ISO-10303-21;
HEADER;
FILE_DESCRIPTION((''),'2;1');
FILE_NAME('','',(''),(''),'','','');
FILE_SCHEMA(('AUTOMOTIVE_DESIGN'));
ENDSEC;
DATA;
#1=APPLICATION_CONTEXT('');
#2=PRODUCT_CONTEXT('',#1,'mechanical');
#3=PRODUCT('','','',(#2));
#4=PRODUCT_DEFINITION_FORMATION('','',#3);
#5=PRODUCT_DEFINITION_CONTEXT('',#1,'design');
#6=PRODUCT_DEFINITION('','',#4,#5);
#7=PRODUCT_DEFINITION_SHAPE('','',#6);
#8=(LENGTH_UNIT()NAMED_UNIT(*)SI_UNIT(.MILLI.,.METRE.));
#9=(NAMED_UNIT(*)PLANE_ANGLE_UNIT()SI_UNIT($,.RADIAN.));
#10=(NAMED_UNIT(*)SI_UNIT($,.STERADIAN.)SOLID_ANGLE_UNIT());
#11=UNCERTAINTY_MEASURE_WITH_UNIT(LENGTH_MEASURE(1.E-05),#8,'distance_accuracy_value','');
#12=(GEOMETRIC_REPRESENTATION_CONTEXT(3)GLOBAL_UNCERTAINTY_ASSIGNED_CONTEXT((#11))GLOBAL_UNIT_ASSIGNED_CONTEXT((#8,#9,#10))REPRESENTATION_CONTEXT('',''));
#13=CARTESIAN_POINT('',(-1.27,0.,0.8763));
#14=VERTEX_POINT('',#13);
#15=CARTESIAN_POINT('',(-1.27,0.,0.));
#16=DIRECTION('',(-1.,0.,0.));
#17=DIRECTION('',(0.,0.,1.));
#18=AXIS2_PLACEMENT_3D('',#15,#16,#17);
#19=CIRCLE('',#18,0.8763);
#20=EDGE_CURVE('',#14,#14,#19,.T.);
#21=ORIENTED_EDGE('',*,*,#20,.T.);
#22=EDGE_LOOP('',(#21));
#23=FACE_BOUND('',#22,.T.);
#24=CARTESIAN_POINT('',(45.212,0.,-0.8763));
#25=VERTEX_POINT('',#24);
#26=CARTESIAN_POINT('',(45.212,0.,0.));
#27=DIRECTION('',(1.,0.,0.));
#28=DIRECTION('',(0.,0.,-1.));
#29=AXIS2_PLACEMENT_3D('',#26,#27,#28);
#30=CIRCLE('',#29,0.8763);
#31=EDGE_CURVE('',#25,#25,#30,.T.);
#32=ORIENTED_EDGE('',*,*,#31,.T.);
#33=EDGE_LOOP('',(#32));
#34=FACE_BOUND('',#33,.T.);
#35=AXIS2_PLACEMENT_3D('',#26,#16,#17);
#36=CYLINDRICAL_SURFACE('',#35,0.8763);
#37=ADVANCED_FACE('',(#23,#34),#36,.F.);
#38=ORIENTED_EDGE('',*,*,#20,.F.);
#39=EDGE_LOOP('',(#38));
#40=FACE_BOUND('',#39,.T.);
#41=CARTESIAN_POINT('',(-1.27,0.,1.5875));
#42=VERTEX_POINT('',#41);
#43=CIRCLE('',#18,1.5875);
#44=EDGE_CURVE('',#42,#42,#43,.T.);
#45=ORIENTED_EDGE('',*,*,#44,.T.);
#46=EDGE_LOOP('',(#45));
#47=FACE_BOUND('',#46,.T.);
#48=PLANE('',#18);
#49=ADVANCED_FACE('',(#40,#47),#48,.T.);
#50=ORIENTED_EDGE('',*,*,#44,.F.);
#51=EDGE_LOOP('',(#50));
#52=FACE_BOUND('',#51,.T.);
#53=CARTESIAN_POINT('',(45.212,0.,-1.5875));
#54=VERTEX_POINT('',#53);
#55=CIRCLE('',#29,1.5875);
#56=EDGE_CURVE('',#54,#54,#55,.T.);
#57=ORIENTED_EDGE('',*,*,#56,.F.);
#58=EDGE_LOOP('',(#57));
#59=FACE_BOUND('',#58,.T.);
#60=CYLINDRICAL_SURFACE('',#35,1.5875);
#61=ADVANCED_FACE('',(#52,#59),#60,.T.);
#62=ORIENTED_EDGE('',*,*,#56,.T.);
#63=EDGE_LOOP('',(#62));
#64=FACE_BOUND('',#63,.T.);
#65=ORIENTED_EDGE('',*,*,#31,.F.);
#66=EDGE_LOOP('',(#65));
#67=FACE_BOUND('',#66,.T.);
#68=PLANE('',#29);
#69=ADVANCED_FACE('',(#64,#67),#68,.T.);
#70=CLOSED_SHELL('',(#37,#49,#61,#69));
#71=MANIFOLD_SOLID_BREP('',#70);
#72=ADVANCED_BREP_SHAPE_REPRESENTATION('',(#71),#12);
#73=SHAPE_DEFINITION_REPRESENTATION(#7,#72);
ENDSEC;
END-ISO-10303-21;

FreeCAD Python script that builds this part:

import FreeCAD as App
import Part
import Sketcher

V = App.Vector
Q = App.Units.Quantity

doc = App.newDocument("Part")
params = doc.addObject("Spreadsheet::Sheet", "Params")
for row, (alias, value) in enumerate([
    ("sketch1_diameter", "0.125 in"),
    ("sketch1_diameter2", "0.069 in"),
    ("pad1_length", "1.78 in"),
    ("sketch2_diameter", "0.125 in"),
    ("sketch2_diameter2", "0.069 in"),
    ("pad2_length", "0.05 in"),
], start=1):
    params.set(f"A{row}", alias)
    params.set(f"B{row}", "=" + value)
    params.setAlias(f"B{row}", alias)

body = doc.addObject("PartDesign::Body", "Body")

# Sketch on YZ plane
sketch1 = body.newObject("Sketcher::SketchObject", "Sketch")
sketch1.AttachmentSupport = (doc.getObject("YZ_Plane"), [""])
sketch1.MapMode = "FlatFace"
sketch1.addGeometry(Part.Circle(V(0, 0, 0), V(0, 0, 1), 1.6), False)
sketch1.addGeometry(Part.Circle(V(0, 0, 0), V(0, 0, 1), 0.9), False)
sketch1.addConstraint(Sketcher.Constraint("Coincident", 0, 3, -1, 1))
sketch1.addConstraint(Sketcher.Constraint("Coincident", 1, 3, -1, 1))
sketch1.addConstraint(Sketcher.Constraint("Diameter", 0, Q("0.125 in")))
sketch1.addConstraint(Sketcher.Constraint("Diameter", 1, Q("0.069 in")))
sketch1.setExpression("Constraints[2]", "Params.sketch1_diameter")
sketch1.setExpression("Constraints[3]", "Params.sketch1_diameter2")
pad1 = body.newObject("PartDesign::Pad", "Pad")
pad1.Profile = sketch1
pad1.setExpression("Length", "Params.pad1_length")

# Sketch on YZ plane
sketch2 = body.newObject("Sketcher::SketchObject", "Sketch001")
sketch2.AttachmentSupport = (doc.getObject("YZ_Plane"), [""])
sketch2.MapMode = "FlatFace"
sketch2.addGeometry(Part.Circle(V(0, 0, 0), V(0, 0, 1), 1.6), False)
sketch2.addGeometry(Part.Circle(V(0, 0, 0), V(0, 0, 1), 0.9), False)
sketch2.addConstraint(Sketcher.Constraint("Coincident", 0, 3, -1, 1))
sketch2.addConstraint(Sketcher.Constraint("Coincident", 1, 3, -1, 1))
sketch2.addConstraint(Sketcher.Constraint("Diameter", 0, Q("0.125 in")))
sketch2.addConstraint(Sketcher.Constraint("Diameter", 1, Q("0.069 in")))
sketch2.setExpression("Constraints[2]", "Params.sketch2_diameter")
sketch2.setExpression("Constraints[3]", "Params.sketch2_diameter2")
pad2 = body.newObject("PartDesign::Pad", "Pad001")
pad2.Profile = sketch2
pad2.setExpression("Length", "Params.pad2_length")
pad2.Reversed = True

doc.recompute()
